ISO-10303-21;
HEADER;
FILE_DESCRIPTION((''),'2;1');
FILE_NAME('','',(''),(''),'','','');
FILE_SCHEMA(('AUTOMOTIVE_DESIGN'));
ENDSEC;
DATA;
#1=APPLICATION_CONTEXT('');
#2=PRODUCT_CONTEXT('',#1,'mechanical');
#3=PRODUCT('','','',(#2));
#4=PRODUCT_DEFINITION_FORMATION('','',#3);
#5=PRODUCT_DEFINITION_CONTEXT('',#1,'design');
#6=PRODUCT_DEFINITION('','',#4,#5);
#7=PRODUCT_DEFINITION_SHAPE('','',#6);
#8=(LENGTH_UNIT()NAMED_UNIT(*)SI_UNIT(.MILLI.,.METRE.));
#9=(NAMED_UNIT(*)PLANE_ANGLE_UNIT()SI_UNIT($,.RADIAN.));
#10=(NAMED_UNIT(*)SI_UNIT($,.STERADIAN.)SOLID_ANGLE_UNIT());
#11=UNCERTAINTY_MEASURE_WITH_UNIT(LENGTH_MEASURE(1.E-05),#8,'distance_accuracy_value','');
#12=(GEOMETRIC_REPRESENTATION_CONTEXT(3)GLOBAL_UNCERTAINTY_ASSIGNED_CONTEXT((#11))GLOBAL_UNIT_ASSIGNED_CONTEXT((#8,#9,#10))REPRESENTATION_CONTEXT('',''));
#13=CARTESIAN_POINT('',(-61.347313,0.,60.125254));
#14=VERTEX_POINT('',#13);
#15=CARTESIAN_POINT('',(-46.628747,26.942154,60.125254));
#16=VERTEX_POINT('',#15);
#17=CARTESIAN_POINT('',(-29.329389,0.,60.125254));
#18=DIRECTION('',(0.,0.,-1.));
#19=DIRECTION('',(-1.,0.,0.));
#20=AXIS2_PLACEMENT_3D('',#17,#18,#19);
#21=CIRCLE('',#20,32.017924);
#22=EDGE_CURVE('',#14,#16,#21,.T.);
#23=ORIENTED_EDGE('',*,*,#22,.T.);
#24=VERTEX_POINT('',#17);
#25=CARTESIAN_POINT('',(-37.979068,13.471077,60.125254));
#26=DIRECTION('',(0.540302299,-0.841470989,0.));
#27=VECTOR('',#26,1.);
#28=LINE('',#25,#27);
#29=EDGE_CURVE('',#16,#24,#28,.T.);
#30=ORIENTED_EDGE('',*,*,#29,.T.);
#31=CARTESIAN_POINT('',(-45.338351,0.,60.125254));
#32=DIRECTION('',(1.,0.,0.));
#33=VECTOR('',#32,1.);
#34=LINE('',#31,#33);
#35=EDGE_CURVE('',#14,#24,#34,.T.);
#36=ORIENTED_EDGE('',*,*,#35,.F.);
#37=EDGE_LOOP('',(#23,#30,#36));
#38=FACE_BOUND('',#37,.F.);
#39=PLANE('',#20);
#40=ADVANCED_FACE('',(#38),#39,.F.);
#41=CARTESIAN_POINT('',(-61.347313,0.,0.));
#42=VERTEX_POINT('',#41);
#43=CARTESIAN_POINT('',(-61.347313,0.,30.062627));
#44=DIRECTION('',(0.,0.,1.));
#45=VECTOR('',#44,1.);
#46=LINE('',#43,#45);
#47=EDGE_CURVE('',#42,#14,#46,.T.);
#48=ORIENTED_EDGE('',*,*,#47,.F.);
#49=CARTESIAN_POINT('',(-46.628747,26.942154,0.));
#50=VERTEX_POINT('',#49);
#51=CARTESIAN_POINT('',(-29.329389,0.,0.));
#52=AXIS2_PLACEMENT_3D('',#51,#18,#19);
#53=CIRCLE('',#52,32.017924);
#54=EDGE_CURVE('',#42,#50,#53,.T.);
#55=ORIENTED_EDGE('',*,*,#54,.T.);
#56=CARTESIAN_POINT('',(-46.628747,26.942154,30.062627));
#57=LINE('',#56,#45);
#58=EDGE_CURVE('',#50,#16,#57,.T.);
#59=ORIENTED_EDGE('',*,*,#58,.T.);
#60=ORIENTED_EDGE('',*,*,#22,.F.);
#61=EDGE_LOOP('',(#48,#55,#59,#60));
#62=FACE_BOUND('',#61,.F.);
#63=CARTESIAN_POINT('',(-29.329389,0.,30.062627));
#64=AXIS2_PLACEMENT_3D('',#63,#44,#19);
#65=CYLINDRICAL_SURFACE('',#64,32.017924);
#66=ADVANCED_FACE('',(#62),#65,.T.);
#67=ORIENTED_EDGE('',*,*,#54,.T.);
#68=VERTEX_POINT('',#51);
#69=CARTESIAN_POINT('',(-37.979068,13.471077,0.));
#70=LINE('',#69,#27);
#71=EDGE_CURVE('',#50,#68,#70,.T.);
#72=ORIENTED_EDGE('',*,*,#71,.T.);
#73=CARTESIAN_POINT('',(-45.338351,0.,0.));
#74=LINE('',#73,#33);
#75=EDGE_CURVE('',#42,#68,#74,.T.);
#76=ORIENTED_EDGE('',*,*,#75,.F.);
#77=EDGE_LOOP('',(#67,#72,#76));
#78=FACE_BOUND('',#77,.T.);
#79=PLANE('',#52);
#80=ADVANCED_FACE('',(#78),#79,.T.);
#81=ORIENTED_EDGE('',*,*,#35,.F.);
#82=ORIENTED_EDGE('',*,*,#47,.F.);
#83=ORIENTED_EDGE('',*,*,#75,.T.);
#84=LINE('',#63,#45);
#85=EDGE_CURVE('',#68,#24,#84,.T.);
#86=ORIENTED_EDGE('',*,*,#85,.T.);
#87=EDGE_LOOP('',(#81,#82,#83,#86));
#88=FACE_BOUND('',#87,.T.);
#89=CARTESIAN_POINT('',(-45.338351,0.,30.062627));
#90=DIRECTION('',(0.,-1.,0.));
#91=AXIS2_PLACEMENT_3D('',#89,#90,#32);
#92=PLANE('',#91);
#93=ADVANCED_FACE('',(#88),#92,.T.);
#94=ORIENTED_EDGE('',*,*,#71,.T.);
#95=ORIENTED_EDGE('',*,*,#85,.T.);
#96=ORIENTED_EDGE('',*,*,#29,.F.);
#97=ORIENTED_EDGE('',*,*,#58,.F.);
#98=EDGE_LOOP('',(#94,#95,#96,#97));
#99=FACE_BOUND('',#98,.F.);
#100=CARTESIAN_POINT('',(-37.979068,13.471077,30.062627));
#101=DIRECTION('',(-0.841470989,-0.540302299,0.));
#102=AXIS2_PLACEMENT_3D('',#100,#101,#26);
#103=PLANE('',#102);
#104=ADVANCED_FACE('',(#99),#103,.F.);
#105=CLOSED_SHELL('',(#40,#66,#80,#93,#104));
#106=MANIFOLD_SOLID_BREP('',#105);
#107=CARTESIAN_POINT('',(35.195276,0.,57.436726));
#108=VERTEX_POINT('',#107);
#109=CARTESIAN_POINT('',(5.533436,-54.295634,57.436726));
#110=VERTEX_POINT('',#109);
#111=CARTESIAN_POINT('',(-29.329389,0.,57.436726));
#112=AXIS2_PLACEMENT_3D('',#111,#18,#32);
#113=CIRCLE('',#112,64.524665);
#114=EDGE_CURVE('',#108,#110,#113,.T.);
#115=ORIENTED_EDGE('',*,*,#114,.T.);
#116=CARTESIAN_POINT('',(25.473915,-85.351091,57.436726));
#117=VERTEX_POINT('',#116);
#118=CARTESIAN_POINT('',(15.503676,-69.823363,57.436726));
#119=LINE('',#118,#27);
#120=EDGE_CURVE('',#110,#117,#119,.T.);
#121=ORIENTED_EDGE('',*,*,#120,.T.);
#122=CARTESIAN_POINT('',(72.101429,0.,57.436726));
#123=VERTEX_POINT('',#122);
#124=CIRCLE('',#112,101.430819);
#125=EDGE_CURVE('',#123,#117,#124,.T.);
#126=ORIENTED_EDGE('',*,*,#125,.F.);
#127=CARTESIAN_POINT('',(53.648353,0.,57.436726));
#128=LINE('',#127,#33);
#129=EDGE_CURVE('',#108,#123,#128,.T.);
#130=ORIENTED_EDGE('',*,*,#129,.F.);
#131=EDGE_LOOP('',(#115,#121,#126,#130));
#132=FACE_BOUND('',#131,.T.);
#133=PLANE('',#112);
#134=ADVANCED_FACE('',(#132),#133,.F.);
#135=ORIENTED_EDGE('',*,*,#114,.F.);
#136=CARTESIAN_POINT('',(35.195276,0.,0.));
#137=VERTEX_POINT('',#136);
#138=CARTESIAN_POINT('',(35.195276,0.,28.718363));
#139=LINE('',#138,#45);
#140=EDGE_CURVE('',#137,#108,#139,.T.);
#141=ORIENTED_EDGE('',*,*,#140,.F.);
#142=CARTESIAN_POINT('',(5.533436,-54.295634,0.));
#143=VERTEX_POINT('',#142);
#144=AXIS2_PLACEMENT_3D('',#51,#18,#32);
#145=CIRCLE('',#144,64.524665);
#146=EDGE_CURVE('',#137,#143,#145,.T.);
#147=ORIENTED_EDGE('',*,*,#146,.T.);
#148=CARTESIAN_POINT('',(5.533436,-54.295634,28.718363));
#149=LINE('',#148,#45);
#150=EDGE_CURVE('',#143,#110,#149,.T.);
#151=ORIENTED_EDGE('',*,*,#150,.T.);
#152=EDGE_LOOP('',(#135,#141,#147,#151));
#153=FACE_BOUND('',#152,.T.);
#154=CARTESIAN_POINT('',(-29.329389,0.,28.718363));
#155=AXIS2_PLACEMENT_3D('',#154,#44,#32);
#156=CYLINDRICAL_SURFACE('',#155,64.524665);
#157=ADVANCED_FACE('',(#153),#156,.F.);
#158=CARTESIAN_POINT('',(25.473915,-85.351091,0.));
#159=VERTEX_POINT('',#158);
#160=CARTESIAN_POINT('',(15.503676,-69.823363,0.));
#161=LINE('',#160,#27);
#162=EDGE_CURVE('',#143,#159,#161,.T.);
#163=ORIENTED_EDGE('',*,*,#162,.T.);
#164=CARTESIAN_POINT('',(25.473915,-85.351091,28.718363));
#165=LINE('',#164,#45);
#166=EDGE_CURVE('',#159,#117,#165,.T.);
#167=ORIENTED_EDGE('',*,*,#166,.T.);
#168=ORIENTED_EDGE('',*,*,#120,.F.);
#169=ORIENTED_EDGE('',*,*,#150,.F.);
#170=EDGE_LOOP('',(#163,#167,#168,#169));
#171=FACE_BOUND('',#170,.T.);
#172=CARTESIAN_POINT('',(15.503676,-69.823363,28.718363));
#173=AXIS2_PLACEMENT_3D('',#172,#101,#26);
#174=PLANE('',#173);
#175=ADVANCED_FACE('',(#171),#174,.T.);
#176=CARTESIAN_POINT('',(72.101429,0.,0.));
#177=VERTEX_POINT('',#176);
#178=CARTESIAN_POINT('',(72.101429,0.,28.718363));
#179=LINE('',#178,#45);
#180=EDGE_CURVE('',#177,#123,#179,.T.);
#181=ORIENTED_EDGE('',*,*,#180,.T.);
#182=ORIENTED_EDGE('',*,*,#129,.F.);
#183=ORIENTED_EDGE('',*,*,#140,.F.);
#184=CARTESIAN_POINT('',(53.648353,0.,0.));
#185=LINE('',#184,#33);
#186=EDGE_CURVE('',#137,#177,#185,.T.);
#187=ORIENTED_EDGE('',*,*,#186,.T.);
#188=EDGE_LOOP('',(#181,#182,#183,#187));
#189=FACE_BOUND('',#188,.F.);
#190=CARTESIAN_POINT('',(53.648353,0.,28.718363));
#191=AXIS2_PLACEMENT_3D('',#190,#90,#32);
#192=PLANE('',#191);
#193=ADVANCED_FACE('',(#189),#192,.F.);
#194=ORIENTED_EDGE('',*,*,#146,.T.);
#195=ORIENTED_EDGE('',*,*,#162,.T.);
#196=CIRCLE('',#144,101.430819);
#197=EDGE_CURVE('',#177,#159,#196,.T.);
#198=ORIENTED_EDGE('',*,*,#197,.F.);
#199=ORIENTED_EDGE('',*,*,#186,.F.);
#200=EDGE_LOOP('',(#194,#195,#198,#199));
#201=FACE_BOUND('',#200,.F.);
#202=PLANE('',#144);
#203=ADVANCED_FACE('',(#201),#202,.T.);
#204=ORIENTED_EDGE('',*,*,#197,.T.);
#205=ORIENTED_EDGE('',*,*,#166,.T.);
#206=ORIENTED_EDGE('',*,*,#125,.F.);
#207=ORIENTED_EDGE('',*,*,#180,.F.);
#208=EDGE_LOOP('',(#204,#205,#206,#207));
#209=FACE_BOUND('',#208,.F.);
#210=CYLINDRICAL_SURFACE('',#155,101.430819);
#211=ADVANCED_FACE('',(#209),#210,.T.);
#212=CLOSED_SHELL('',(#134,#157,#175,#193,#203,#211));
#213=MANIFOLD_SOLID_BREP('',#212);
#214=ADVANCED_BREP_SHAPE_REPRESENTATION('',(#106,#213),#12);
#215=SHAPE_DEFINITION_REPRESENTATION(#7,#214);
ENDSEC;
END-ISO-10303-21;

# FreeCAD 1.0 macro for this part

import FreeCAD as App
import Part
import Sketcher
from FreeCAD import Vector


def add_polygon(sketch, points):
    """Adds a closed chain of lines whose ends are joined by coincident constraints."""
    first, n = sketch.GeometryCount, len(points)
    for a, b in zip(points, points[1:] + points[:1]):
        sketch.addGeometry(Part.LineSegment(App.Vector(*a, 0), App.Vector(*b, 0)), False)
    for i in range(n):
        sketch.addConstraint(Sketcher.Constraint("Coincident", first + i, 2, first + (i + 1) % n, 1))

doc = App.newDocument("Part")
body = doc.addObject("PartDesign::Body", "Body")
body.AllowCompound = True

# Sketch on XZ plane
sketch1 = body.newObject("Sketcher::SketchObject", "Sketch")
sketch1.AttachmentSupport = (doc.getObject("XZ_Plane"), [""])
sketch1.MapMode = "FlatFace"
add_polygon(sketch1, [(-61.347313, 60.125254), (-61.347313, 0), (-29.329389, 0), (-29.329389, 60.125254)])  # lines 0-3
add_polygon(sketch1, [(35.195276, 57.436726), (35.195276, 0), (72.101429, 0), (72.101429, 57.436726)])  # lines 4-7
sketch1.addGeometry(Part.LineSegment(Vector(-29.329389, 60.125254, 0), Vector(-29.329389, 0, 0)), True)  # axis
sketch1.addConstraint(Sketcher.Constraint("Vertical", 0))
sketch1.addConstraint(Sketcher.Constraint("Horizontal", 1))
sketch1.addConstraint(Sketcher.Constraint("Vertical", 2))
sketch1.addConstraint(Sketcher.Constraint("Horizontal", 3))
sketch1.addConstraint(Sketcher.Constraint("Vertical", 4))
sketch1.addConstraint(Sketcher.Constraint("Horizontal", 5))
sketch1.addConstraint(Sketcher.Constraint("Vertical", 6))
sketch1.addConstraint(Sketcher.Constraint("Horizontal", 7))
sketch1.addConstraint(Sketcher.Constraint("Vertical", 8))
sketch1.addConstraint(Sketcher.Constraint("Coincident", 8, 1, 2, 2))
sketch1.addConstraint(Sketcher.Constraint("PointOnObject", 0, 2, -1))
sketch1.addConstraint(Sketcher.Constraint("PointOnObject", 4, 2, -1))
sketch1.addConstraint(Sketcher.Constraint("PointOnObject", 8, 2, -1))
sketch1.addConstraint(Sketcher.Constraint("DistanceX", 1, 1, 1, 2, 32.017924))
sketch1.addConstraint(Sketcher.Constraint("DistanceX", 5, 1, 5, 2, 36.906153))
sketch1.addConstraint(Sketcher.Constraint("DistanceY", 0, 2, 0, 1, 60.125254))
sketch1.addConstraint(Sketcher.Constraint("DistanceY", 4, 2, 4, 1, 57.436727))
sketch1.addConstraint(Sketcher.Constraint("DistanceX", 1, 2, -1, 1, 29.329389))
sketch1.addConstraint(Sketcher.Constraint("DistanceX", -1, 1, 5, 2, 72.101429))
revolution = body.newObject("PartDesign::Revolution", "Revolution")
revolution.Profile = sketch1
revolution.ReferenceAxis = (sketch1, ["Axis0"])
revolution.Angle = 57.29578

doc.recompute()
